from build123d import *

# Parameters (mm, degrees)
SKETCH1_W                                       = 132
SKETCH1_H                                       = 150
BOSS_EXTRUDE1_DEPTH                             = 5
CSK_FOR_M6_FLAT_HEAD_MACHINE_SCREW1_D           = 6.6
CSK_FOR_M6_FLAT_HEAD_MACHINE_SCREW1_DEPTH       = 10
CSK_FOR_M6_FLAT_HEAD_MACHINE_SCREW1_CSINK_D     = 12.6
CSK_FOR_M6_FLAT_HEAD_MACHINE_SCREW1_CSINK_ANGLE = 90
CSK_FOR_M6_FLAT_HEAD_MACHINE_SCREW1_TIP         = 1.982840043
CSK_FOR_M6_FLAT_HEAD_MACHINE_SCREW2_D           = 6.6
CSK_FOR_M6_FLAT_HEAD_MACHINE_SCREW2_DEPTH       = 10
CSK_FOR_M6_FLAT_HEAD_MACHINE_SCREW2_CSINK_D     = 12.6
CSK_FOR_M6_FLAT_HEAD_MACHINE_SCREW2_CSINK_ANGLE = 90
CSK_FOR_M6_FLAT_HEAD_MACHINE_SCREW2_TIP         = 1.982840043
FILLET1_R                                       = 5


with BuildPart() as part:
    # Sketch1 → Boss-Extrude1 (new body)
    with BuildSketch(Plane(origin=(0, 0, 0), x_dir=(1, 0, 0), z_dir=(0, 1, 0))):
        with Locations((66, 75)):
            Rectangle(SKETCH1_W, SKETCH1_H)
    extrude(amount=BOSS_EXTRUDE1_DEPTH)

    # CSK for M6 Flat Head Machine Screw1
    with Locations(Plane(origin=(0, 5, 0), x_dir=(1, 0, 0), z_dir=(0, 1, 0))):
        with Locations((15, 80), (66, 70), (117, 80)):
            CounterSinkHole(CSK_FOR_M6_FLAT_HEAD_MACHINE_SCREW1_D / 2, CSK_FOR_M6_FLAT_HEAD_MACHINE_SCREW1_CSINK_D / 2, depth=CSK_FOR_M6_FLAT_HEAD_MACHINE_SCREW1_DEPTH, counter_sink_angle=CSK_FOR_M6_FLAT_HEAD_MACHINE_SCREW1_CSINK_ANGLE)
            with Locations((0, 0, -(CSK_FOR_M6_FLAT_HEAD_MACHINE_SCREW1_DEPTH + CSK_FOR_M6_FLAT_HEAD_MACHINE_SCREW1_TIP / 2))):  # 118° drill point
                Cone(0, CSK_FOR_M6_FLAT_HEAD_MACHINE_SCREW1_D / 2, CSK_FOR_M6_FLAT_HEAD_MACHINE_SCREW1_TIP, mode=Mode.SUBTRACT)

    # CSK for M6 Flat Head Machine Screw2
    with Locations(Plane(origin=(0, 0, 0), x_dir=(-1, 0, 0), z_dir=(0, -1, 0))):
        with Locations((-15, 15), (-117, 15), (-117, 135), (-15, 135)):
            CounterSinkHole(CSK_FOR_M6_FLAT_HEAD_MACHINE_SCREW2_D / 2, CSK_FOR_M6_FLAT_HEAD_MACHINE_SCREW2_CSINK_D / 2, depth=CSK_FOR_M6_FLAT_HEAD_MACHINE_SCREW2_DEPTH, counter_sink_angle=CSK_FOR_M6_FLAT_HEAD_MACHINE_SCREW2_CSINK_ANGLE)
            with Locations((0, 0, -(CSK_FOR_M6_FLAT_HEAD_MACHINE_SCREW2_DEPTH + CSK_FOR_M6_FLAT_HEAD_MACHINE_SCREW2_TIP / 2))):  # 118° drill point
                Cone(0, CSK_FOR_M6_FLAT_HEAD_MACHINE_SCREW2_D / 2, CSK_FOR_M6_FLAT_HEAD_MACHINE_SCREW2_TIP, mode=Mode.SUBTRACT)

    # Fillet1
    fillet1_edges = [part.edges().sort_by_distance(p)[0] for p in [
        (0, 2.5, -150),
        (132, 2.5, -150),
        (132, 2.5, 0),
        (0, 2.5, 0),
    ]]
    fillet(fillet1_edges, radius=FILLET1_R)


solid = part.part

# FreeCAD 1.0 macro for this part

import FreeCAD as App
import Part
import Sketcher

V = App.Vector
Q = App.Units.Quantity


def edges_at(feature, points):
    """Names of the edges that pass closest to the given points."""
    edges = feature.Shape.Edges
    near = lambda p: min(range(len(edges)), key=lambda i: edges[i].distToShape(Part.Vertex(*p))[0])
    return sorted({f"Edge{near(p) + 1}" for p in points})


def add_polygon(sketch, points):
    """Adds a closed chain of lines whose ends are joined by coincident constraints."""
    first, n = sketch.GeometryCount, len(points)
    for a, b in zip(points, points[1:] + points[:1]):
        sketch.addGeometry(Part.LineSegment(App.Vector(*a, 0), App.Vector(*b, 0)), False)
    for i in range(n):
        sketch.addConstraint(Sketcher.Constraint("Coincident", first + i, 2, first + (i + 1) % n, 1))

doc = App.newDocument("Part")
body = doc.addObject("PartDesign::Body", "Body")

sketch1 = body.newObject("Sketcher::SketchObject", "Sketch")
sketch1.AttachmentSupport = (doc.getObject("XZ_Plane"), [""])
sketch1.MapMode = "FlatFace"
add_polygon(sketch1, [(0, -150), (0, 0), (132, 0), (132, -150)])
sketch1.addConstraint(Sketcher.Constraint("Vertical", 0))
sketch1.addConstraint(Sketcher.Constraint("Horizontal", 1))
sketch1.addConstraint(Sketcher.Constraint("Vertical", 2))
sketch1.addConstraint(Sketcher.Constraint("Horizontal", 3))
sketch1.addConstraint(Sketcher.Constraint("Coincident", 0, 2, -1, 1))
sketch1.addConstraint(Sketcher.Constraint("DistanceX", 1, 1, 1, 2, Q("132 mm")))
sketch1.addConstraint(Sketcher.Constraint("DistanceY", 0, 1, 0, 2, Q("150 mm")))
pad1 = body.newObject("PartDesign::Pad", "Pad")
pad1.Profile = sketch1
pad1.Length = 5
pad1.Reversed = True

sketch2 = body.newObject("Sketcher::SketchObject", "Sketch001")
sketch2.AttachmentSupport = (doc.getObject("XZ_Plane"), [""])
sketch2.MapMode = "FlatFace"
sketch2.AttachmentOffset = App.Placement(V(0, 0, -5), App.Rotation())
sketch2.addGeometry(Part.Circle(V(15, -80, 0), V(0, 0, 1), 3.3), False)
sketch2.addGeometry(Part.Circle(V(66, -70, 0), V(0, 0, 1), 3.3), False)
sketch2.addGeometry(Part.Circle(V(117, -80, 0), V(0, 0, 1), 3.3), False)
sketch2.addConstraint(Sketcher.Constraint("Equal", 0, 1))
sketch2.addConstraint(Sketcher.Constraint("Equal", 1, 2))
sketch2.addConstraint(Sketcher.Constraint("Horizontal", 0, 3, 2, 3))
sketch2.addConstraint(Sketcher.Constraint("Diameter", 0, Q("6.6 mm")))
sketch2.addConstraint(Sketcher.Constraint("DistanceX", -1, 1, 0, 3, Q("15 mm")))
sketch2.addConstraint(Sketcher.Constraint("DistanceY", 0, 3, -1, 1, Q("80 mm")))
sketch2.addConstraint(Sketcher.Constraint("DistanceX", -1, 1, 1, 3, Q("66 mm")))
sketch2.addConstraint(Sketcher.Constraint("DistanceY", 1, 3, -1, 1, Q("70 mm")))
sketch2.addConstraint(Sketcher.Constraint("DistanceX", -1, 1, 2, 3, Q("117 mm")))
doc.recompute()
hole = body.newObject("PartDesign::Hole", "Hole")
hole.Profile = sketch2
hole.ThreadType = "None"
hole.Diameter = 6.6
hole.DepthType = "Dimension"
hole.Depth = 10
hole.DrillPoint = "Angled"
hole.DrillPointAngle = 118
hole.HoleCutType = "Countersink"
hole.HoleCutDiameter = 12.6
hole.HoleCutCountersinkAngle = 90
hole.Reversed = True

sketch3 = body.newObject("Sketcher::SketchObject", "Sketch002")
sketch3.AttachmentSupport = (doc.getObject("XZ_Plane"), [""])
sketch3.MapMode = "FlatFace"
sketch3.addGeometry(Part.Circle(V(15, -15, 0), V(0, 0, 1), 3.3), False)
sketch3.addGeometry(Part.Circle(V(117, -15, 0), V(0, 0, 1), 3.3), False)
sketch3.addGeometry(Part.Circle(V(117, -135, 0), V(0, 0, 1), 3.3), False)
sketch3.addGeometry(Part.Circle(V(15, -135, 0), V(0, 0, 1), 3.3), False)
sketch3.addConstraint(Sketcher.Constraint("Equal", 0, 1))
sketch3.addConstraint(Sketcher.Constraint("Equal", 1, 2))
sketch3.addConstraint(Sketcher.Constraint("Equal", 2, 3))
sketch3.addConstraint(Sketcher.Constraint("Horizontal", 0, 3, 1, 3))
sketch3.addConstraint(Sketcher.Constraint("Horizontal", 2, 3, 3, 3))
sketch3.addConstraint(Sketcher.Constraint("Vertical", 1, 3, 2, 3))
sketch3.addConstraint(Sketcher.Constraint("Vertical", 0, 3, 3, 3))
sketch3.addConstraint(Sketcher.Constraint("Diameter", 0, Q("6.6 mm")))
sketch3.addConstraint(Sketcher.Constraint("DistanceX", -1, 1, 0, 3, Q("15 mm")))
sketch3.addConstraint(Sketcher.Constraint("DistanceY", 0, 3, -1, 1, Q("15 mm")))
sketch3.addConstraint(Sketcher.Constraint("DistanceX", -1, 1, 1, 3, Q("117 mm")))
sketch3.addConstraint(Sketcher.Constraint("DistanceY", 2, 3, -1, 1, Q("135 mm")))
doc.recompute()
hole2 = body.newObject("PartDesign::Hole", "Hole001")
hole2.Profile = sketch3
hole2.ThreadType = "None"
hole2.Diameter = 6.6
hole2.DepthType = "Dimension"
hole2.Depth = 10
hole2.DrillPoint = "Angled"
hole2.DrillPointAngle = 118
hole2.HoleCutType = "Countersink"
hole2.HoleCutDiameter = 12.6
hole2.HoleCutCountersinkAngle = 90
doc.recompute()

fillet = body.newObject("PartDesign::Fillet", "Fillet")
fillet.Base = (hole2, edges_at(hole2, [
    (0, 2.5, -150),
    (132, 2.5, -150),
    (132, 2.5, 0),
    (0, 2.5, 0),
]))
fillet.Radius = 5

doc.recompute()
